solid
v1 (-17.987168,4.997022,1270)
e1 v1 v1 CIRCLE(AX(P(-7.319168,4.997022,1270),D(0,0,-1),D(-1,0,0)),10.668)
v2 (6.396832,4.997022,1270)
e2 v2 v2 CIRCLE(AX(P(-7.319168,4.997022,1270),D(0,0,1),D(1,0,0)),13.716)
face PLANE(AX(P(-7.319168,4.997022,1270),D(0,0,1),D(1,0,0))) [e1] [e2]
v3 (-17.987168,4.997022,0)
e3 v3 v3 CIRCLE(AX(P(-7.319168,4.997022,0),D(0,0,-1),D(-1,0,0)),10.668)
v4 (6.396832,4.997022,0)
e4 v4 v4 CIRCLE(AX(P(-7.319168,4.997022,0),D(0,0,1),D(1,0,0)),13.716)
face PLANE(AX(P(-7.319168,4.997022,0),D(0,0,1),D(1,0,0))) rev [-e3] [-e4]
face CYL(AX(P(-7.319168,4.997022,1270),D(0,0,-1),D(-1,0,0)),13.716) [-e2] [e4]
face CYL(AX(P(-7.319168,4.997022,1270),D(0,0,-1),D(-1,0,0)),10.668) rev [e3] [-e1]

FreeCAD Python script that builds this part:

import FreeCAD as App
import Part
import Sketcher
Q = App.Units.Quantity

doc = App.newDocument("Part")
body = doc.addObject("PartDesign::Body", "Body")

# Sketch on XY plane
sketch1 = body.newObject("Sketcher::SketchObject", "Sketch")
sketch1.AttachmentSupport = (doc.getObject("XY_Plane"), [""])
sketch1.MapMode = "FlatFace"
sketch1.addGeometry(Part.Circle(App.Vector(-7, 5, 0), App.Vector(0, 0, 1), 14), False)
sketch1.addConstraint(Sketcher.Constraint("Diameter", 0, Q("1.08 in")))
sketch1.addConstraint(Sketcher.Constraint("DistanceX", 0, 3, -1, 1, 7.319168))
sketch1.addConstraint(Sketcher.Constraint("DistanceY", -1, 1, 0, 3, 4.997022))
pad1 = body.newObject("PartDesign::Pad", "Pad")
pad1.Profile = sketch1
pad1.Length = Q("50 in")

# Sketch on XY plane
sketch2 = body.newObject("Sketcher::SketchObject", "Sketch001")
sketch2.AttachmentSupport = (doc.getObject("XY_Plane"), [""])
sketch2.MapMode = "FlatFace"
sketch2.addGeometry(Part.Circle(App.Vector(-7, 5, 0), App.Vector(0, 0, 1), 11), False)
sketch2.addConstraint(Sketcher.Constraint("Diameter", 0, Q("0.84 in")))
sketch2.addConstraint(Sketcher.Constraint("DistanceX", 0, 3, -1, 1, 7.319168))
sketch2.addConstraint(Sketcher.Constraint("DistanceY", -1, 1, 0, 3, 4.997022))
pocket1 = body.newObject("PartDesign::Pocket", "Pocket")
pocket1.Profile = sketch2
pocket1.Type = "ThroughAll"
pocket1.Reversed = True

doc.recompute()
